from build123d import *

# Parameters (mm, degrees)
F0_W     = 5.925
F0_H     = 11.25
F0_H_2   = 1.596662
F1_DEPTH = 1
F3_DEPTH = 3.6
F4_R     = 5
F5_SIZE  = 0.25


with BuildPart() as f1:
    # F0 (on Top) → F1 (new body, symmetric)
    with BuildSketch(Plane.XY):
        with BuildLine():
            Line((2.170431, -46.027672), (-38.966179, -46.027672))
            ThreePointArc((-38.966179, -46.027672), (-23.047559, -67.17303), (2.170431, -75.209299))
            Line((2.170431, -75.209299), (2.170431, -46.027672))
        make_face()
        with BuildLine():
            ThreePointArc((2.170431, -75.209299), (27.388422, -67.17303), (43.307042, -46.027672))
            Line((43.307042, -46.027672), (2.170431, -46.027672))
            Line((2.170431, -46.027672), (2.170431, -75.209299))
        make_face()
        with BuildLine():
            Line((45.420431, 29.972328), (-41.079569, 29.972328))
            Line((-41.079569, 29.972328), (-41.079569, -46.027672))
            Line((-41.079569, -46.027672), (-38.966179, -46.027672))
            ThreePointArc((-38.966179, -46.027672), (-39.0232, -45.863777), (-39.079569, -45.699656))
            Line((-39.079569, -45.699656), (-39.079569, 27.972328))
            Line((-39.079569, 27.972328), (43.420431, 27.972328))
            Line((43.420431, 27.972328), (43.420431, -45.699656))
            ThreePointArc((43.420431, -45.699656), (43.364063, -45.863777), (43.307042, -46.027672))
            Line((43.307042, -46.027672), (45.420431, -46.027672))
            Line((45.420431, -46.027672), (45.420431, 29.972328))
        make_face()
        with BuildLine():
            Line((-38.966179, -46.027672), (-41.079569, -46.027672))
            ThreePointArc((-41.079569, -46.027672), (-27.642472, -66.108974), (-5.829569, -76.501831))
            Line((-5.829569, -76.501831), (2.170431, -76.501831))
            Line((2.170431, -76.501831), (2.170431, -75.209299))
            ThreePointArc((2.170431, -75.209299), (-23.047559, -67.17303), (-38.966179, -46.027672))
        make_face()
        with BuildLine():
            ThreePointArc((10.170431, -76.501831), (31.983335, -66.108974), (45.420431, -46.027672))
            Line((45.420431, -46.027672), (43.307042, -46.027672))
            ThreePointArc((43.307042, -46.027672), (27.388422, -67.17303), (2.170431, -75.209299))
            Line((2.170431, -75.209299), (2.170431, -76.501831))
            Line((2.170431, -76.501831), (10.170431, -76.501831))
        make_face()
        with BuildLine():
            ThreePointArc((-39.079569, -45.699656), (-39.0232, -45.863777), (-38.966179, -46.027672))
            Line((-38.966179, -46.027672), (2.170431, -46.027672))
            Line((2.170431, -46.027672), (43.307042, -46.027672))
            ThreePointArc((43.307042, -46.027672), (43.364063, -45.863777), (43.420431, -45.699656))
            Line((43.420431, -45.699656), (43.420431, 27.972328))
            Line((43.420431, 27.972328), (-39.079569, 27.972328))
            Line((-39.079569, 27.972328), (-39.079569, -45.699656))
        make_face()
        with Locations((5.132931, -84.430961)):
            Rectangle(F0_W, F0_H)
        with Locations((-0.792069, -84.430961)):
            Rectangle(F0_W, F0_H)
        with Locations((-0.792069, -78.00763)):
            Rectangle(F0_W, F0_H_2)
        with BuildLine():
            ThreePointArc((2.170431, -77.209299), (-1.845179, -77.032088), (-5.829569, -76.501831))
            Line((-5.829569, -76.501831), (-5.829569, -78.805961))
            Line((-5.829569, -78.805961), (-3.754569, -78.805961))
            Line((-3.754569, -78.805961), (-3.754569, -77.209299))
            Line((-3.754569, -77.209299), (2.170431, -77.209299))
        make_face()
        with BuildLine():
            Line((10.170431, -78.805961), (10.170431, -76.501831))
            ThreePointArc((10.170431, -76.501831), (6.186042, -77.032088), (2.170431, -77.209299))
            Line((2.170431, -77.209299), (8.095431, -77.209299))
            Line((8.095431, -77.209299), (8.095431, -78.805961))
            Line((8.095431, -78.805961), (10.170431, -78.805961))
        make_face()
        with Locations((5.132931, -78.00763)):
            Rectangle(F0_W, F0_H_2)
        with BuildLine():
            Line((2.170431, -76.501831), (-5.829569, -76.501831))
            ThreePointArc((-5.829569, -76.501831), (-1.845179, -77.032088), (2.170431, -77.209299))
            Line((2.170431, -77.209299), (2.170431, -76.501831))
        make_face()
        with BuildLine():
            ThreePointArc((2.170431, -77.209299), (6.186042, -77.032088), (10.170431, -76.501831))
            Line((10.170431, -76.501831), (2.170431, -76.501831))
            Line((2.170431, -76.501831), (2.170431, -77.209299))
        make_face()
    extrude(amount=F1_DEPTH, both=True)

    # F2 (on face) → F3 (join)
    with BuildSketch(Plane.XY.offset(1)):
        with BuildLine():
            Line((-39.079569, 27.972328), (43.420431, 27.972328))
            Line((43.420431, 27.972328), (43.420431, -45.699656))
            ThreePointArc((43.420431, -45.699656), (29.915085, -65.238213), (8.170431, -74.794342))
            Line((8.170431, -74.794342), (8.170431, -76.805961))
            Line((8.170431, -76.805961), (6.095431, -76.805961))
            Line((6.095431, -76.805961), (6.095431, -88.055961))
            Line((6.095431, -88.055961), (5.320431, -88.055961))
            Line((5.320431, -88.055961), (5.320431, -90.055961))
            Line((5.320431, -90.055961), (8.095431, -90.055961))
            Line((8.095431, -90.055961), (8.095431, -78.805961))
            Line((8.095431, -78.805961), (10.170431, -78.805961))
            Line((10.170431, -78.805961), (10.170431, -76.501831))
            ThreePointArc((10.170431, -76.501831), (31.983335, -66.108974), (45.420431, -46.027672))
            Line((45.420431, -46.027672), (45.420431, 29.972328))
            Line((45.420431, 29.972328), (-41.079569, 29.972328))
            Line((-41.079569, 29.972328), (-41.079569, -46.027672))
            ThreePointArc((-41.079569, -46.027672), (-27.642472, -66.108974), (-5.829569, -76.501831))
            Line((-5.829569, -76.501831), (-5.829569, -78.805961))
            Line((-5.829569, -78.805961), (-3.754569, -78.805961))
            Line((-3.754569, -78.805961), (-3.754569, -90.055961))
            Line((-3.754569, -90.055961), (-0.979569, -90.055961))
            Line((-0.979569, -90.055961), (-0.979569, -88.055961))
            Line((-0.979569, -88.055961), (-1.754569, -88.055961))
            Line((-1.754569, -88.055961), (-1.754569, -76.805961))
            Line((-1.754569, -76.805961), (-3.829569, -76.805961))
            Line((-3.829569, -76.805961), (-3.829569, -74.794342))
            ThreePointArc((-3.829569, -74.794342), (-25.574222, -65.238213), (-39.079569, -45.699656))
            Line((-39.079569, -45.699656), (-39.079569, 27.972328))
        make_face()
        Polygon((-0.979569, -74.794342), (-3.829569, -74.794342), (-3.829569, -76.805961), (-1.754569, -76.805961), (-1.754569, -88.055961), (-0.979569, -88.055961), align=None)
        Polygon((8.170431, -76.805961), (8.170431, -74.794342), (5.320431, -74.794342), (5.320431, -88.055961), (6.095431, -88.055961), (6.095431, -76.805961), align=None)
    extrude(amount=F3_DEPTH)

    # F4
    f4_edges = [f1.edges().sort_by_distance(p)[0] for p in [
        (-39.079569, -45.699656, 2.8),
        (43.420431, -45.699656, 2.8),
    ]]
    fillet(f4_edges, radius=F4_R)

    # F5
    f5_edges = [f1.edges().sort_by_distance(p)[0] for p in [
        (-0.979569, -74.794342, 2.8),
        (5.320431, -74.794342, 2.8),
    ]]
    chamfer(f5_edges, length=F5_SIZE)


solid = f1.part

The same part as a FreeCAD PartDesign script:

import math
import FreeCAD as App
import Part
import Sketcher
from FreeCAD import Vector
Q = App.Units.Quantity


def edges_at(feature, points):
    """Names of the edges that pass closest to the given points."""
    edges = feature.Shape.Edges
    near = lambda p: min(range(len(edges)), key=lambda i: edges[i].distToShape(Part.Vertex(*p))[0])
    return sorted({f"Edge{near(p) + 1}" for p in points})

doc = App.newDocument("Part")
body = doc.addObject("PartDesign::Body", "Body")

sketch1 = body.newObject("Sketcher::SketchObject", "Sketch")
sketch1.AttachmentSupport = (doc.getObject("XY_Plane"), [""])
sketch1.MapMode = "FlatFace"
sketch1.addGeometry([
    Part.LineSegment(Vector(10.2, -78.8, 0), Vector(10.2, -76.5, 0)),
    Part.ArcOfCircle(Part.Circle(Vector(2.2, -31.6, 0), Vector(0, 0, 1), 45.6), math.radians(-80), math.radians(-18)),
    Part.LineSegment(Vector(45.4, -46, 0), Vector(45.4, 30, 0)),
    Part.LineSegment(Vector(45.4, 30, 0), Vector(-41.1, 30, 0)),
    Part.LineSegment(Vector(-41.1, 30, 0), Vector(-41.1, -46, 0)),
    Part.ArcOfCircle(Part.Circle(Vector(2.2, -31.6, 0), Vector(0, 0, 1), 45.6), math.radians(-162), math.radians(-100)),
    Part.LineSegment(Vector(-5.8, -76.5, 0), Vector(-5.8, -78.8, 0)),
    Part.LineSegment(Vector(-5.8, -78.8, 0), Vector(-3.8, -78.8, 0)),
    Part.LineSegment(Vector(-3.8, -78.8, 0), Vector(-3.8, -90.1, 0)),
    Part.LineSegment(Vector(-3.8, -90.1, 0), Vector(8.1, -90.1, 0)),
    Part.LineSegment(Vector(8.1, -90.1, 0), Vector(8.1, -78.8, 0)),
    Part.LineSegment(Vector(8.1, -78.8, 0), Vector(10.2, -78.8, 0)),
], False)
sketch1.addConstraint([
    Sketcher.Constraint("Coincident", 0, 2, 1, 1),
    Sketcher.Constraint("Coincident", 1, 2, 2, 1),
    Sketcher.Constraint("Coincident", 2, 2, 3, 1),
    Sketcher.Constraint("Coincident", 3, 2, 4, 1),
    Sketcher.Constraint("Coincident", 4, 2, 5, 1),
    Sketcher.Constraint("Coincident", 5, 2, 6, 1),
    Sketcher.Constraint("Coincident", 6, 2, 7, 1),
    Sketcher.Constraint("Coincident", 7, 2, 8, 1),
    Sketcher.Constraint("Coincident", 8, 2, 9, 1),
    Sketcher.Constraint("Coincident", 9, 2, 10, 1),
    Sketcher.Constraint("Coincident", 10, 2, 11, 1),
    Sketcher.Constraint("Coincident", 11, 2, 0, 1),
    Sketcher.Constraint("Vertical", 0),
    Sketcher.Constraint("Vertical", 2),
    Sketcher.Constraint("Horizontal", 3),
    Sketcher.Constraint("Vertical", 4),
    Sketcher.Constraint("Vertical", 6),
    Sketcher.Constraint("Horizontal", 7),
    Sketcher.Constraint("Vertical", 8),
    Sketcher.Constraint("Horizontal", 9),
    Sketcher.Constraint("Vertical", 10),
    Sketcher.Constraint("Horizontal", 11),
    Sketcher.Constraint("Coincident", 5, 3, 1, 3),
    Sketcher.Constraint("Horizontal", 1, 2, 4, 2),
    Sketcher.Constraint("Horizontal", 0, 2, 5, 2),
    Sketcher.Constraint("Horizontal", 7, 2, 10, 2),
    Sketcher.Constraint("Equal", 7, 11),
    Sketcher.Constraint("DistanceY", 2, 1, 2, 2, Q("76 mm")),
    Sketcher.Constraint("DistanceX", 3, 2, 3, 1, Q("86.5 mm")),
    Sketcher.Constraint("DistanceX", 5, 3, 0, 2, Q("7.999999 mm")),
    Sketcher.Constraint("DistanceX", 5, 2, 0, 2, Q("16 mm")),
    Sketcher.Constraint("DistanceX", 9, 1, 9, 2, Q("11.85 mm")),
    Sketcher.Constraint("DistanceY", 8, 2, 8, 1, Q("11.25 mm")),
    Sketcher.Constraint("Radius", 5, Q("45.585441 mm")),
    Sketcher.Constraint("DistanceY", 0, 1, 0, 2, Q("2.30413 mm")),
    Sketcher.Constraint("DistanceX", -1, 1, 5, 3, Q("2.170432 mm")),
    Sketcher.Constraint("DistanceY", 5, 3, -1, 1, Q("31.623859 mm")),
])
pad1 = body.newObject("PartDesign::Pad", "Pad")
pad1.Profile = sketch1
pad1.Length = 2
pad1.Midplane = True

sketch2 = body.newObject("Sketcher::SketchObject", "Sketch001")
sketch2.AttachmentSupport = (doc.getObject("XY_Plane"), [""])
sketch2.MapMode = "FlatFace"
sketch2.AttachmentOffset = App.Placement(Vector(0, 0, 1), App.Rotation())
sketch2.addGeometry([
    Part.LineSegment(Vector(-39.1, 28, 0), Vector(43.4, 28, 0)),
    Part.LineSegment(Vector(43.4, 28, 0), Vector(43.4, -45.7, 0)),
    Part.ArcOfCircle(Part.Circle(Vector(2.2, -31.6, 0), Vector(0, 0, 1), 43.6), math.radians(-82), math.radians(-19)),
    Part.LineSegment(Vector(8.2, -74.8, 0), Vector(5.3, -74.8, 0)),
    Part.LineSegment(Vector(5.3, -74.8, 0), Vector(5.3, -90.1, 0)),
    Part.LineSegment(Vector(5.3, -90.1, 0), Vector(8.1, -90.1, 0)),
    Part.LineSegment(Vector(8.1, -90.1, 0), Vector(8.1, -78.8, 0)),
    Part.LineSegment(Vector(8.1, -78.8, 0), Vector(10.2, -78.8, 0)),
    Part.LineSegment(Vector(10.2, -78.8, 0), Vector(10.2, -76.5, 0)),
    Part.ArcOfCircle(Part.Circle(Vector(2.2, -31.6, 0), Vector(0, 0, 1), 45.6), math.radians(-80), math.radians(-18)),
    Part.LineSegment(Vector(45.4, -46, 0), Vector(45.4, 30, 0)),
    Part.LineSegment(Vector(45.4, 30, 0), Vector(-41.1, 30, 0)),
    Part.LineSegment(Vector(-41.1, 30, 0), Vector(-41.1, -46, 0)),
    Part.ArcOfCircle(Part.Circle(Vector(2.2, -31.6, 0), Vector(0, 0, 1), 45.6), math.radians(-162), math.radians(-100)),
    Part.LineSegment(Vector(-5.8, -76.5, 0), Vector(-5.8, -78.8, 0)),
    Part.LineSegment(Vector(-5.8, -78.8, 0), Vector(-3.8, -78.8, 0)),
    Part.LineSegment(Vector(-3.8, -78.8, 0), Vector(-3.8, -90.1, 0)),
    Part.LineSegment(Vector(-3.8, -90.1, 0), Vector(-1, -90.1, 0)),
    Part.LineSegment(Vector(-1, -90.1, 0), Vector(-1, -74.8, 0)),
    Part.LineSegment(Vector(-1, -74.8, 0), Vector(-3.8, -74.8, 0)),
    Part.ArcOfCircle(Part.Circle(Vector(2.2, -31.6, 0), Vector(0, 0, 1), 43.6), math.radians(-161), math.radians(-98)),
    Part.LineSegment(Vector(-39.1, -45.7, 0), Vector(-39.1, 28, 0)),
], False)
sketch2.addConstraint([
    Sketcher.Constraint("Coincident", 0, 2, 1, 1),
    Sketcher.Constraint("Coincident", 1, 2, 2, 2),
    Sketcher.Constraint("Coincident", 2, 1, 3, 1),
    Sketcher.Constraint("Coincident", 3, 2, 4, 1),
    Sketcher.Constraint("Coincident", 4, 2, 5, 1),
    Sketcher.Constraint("Coincident", 5, 2, 6, 1),
    Sketcher.Constraint("Coincident", 6, 2, 7, 1),
    Sketcher.Constraint("Coincident", 7, 2, 8, 1),
    Sketcher.Constraint("Coincident", 8, 2, 9, 1),
    Sketcher.Constraint("Coincident", 9, 2, 10, 1),
    Sketcher.Constraint("Coincident", 10, 2, 11, 1),
    Sketcher.Constraint("Coincident", 11, 2, 12, 1),
    Sketcher.Constraint("Coincident", 12, 2, 13, 1),
    Sketcher.Constraint("Coincident", 13, 2, 14, 1),
    Sketcher.Constraint("Coincident", 14, 2, 15, 1),
    Sketcher.Constraint("Coincident", 15, 2, 16, 1),
    Sketcher.Constraint("Coincident", 16, 2, 17, 1),
    Sketcher.Constraint("Coincident", 17, 2, 18, 1),
    Sketcher.Constraint("Coincident", 18, 2, 19, 1),
    Sketcher.Constraint("Coincident", 19, 2, 20, 2),
    Sketcher.Constraint("Coincident", 20, 1, 21, 1),
    Sketcher.Constraint("Coincident", 21, 2, 0, 1),
    Sketcher.Constraint("Horizontal", 0),
    Sketcher.Constraint("Vertical", 1),
    Sketcher.Constraint("Horizontal", 3),
    Sketcher.Constraint("Vertical", 4),
    Sketcher.Constraint("Horizontal", 5),
    Sketcher.Constraint("Vertical", 6),
    Sketcher.Constraint("Horizontal", 7),
    Sketcher.Constraint("Vertical", 8),
    Sketcher.Constraint("Vertical", 10),
    Sketcher.Constraint("Horizontal", 11),
    Sketcher.Constraint("Vertical", 12),
    Sketcher.Constraint("Vertical", 14),
    Sketcher.Constraint("Horizontal", 15),
    Sketcher.Constraint("Vertical", 16),
    Sketcher.Constraint("Horizontal", 17),
    Sketcher.Constraint("Vertical", 18),
    Sketcher.Constraint("Horizontal", 19),
    Sketcher.Constraint("Vertical", 21),
    Sketcher.Constraint("Coincident", 9, 3, 2, 3),
    Sketcher.Constraint("Coincident", 13, 3, 2, 3),
    Sketcher.Constraint("Coincident", 20, 3, 2, 3),
    Sketcher.Constraint("Horizontal", 9, 2, 12, 2),
    Sketcher.Constraint("Horizontal", 8, 2, 13, 2),
    Sketcher.Constraint("Horizontal", 7, 2, 14, 2),
    Sketcher.Constraint("Horizontal", 5, 2, 16, 2),
    Sketcher.Constraint("Horizontal", 3, 2, 18, 2),
    Sketcher.Constraint("Horizontal", 1, 2, 20, 1),
    Sketcher.Constraint("Equal", 7, 15),
    Sketcher.Constraint("Equal", 5, 17),
    Sketcher.Constraint("Equal", 3, 19),
    Sketcher.Constraint("DistanceY", 10, 1, 10, 2, Q("76 mm")),
    Sketcher.Constraint("DistanceX", 0, 1, 0, 2, Q("82.5 mm")),
    Sketcher.Constraint("DistanceX", 11, 2, 11, 1, Q("86.5 mm")),
    Sketcher.Constraint("DistanceX", 2, 3, 2, 1, Q("5.999998 mm")),
    Sketcher.Constraint("DistanceX", 2, 1, 7, 2, Q("2 mm")),
    Sketcher.Constraint("DistanceX", 0, 2, 10, 2, Q("2 mm")),
    Sketcher.Constraint("DistanceY", 0, 2, 10, 2, Q("2 mm")),
    Sketcher.Constraint("DistanceX", 3, 2, 3, 1, Q("2.85 mm")),
    Sketcher.Constraint("DistanceY", 6, 1, 6, 2, Q("11.25 mm")),
    Sketcher.Constraint("DistanceX", 5, 1, 5, 2, Q("2.775 mm")),
    Sketcher.Constraint("Radius", 13, Q("45.585441 mm")),
    Sketcher.Constraint("Radius", 20, Q("43.585441 mm")),
    Sketcher.Constraint("DistanceY", 4, 2, 4, 1, Q("15.261619 mm")),
    Sketcher.Constraint("DistanceY", 2, 3, -1, 1, Q("31.623862 mm")),
    Sketcher.Constraint("DistanceX", -1, 1, 13, 3, Q("2.170432 mm")),
])
pad2 = body.newObject("PartDesign::Pad", "Pad001")
pad2.Profile = sketch2
pad2.Length = 3.6
doc.recompute()

fillet = body.newObject("PartDesign::Fillet", "Fillet")
fillet.Base = (pad2, edges_at(pad2, [(-39.08, -45.7, 2.8), (43.42, -45.7, 2.8)]))
fillet.Radius = 5
doc.recompute()

chamfer = body.newObject("PartDesign::Chamfer", "Chamfer")
chamfer.Base = (fillet, edges_at(fillet, [(-0.98, -74.794, 2.8), (5.32, -74.794, 2.8)]))
chamfer.Size = 0.25

doc.recompute()
